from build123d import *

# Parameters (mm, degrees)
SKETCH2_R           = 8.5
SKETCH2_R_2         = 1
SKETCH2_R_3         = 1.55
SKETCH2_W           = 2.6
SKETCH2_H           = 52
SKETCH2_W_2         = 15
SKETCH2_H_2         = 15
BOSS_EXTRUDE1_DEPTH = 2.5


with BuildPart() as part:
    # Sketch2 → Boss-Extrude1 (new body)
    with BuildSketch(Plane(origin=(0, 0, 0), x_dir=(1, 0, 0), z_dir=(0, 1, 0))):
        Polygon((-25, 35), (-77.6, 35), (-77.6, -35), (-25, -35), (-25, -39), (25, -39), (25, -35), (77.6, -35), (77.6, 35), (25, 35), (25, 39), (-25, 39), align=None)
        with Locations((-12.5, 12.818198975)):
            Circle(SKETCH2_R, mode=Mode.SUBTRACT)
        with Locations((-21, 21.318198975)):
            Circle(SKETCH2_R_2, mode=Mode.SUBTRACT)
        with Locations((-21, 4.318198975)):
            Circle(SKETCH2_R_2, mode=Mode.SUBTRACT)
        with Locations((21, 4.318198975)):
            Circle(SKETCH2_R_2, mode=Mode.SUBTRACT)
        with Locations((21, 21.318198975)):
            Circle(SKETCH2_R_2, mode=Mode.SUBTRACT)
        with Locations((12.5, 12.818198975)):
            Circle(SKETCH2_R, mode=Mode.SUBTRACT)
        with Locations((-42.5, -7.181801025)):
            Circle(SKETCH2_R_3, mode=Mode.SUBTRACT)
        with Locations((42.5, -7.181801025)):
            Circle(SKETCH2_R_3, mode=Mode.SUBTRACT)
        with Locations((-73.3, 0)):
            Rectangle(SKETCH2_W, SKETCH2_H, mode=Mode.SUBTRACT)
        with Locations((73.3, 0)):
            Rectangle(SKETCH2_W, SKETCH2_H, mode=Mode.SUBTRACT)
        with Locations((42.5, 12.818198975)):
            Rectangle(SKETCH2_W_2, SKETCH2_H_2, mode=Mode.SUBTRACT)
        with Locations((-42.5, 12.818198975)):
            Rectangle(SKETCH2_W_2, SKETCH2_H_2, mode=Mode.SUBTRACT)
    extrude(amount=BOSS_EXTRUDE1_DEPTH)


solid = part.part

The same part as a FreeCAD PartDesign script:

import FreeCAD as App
import Part
import Sketcher

V = App.Vector
Q = App.Units.Quantity

doc = App.newDocument("Part")
body = doc.addObject("PartDesign::Body", "Body")

sketch1 = doc.addObject("Sketcher::SketchObject", "Sketch")
body.addObject(sketch1)
sketch1.AttachmentSupport = (doc.XZ_Plane, [""])
sketch1.MapMode = "FlatFace"
sketch1.addGeometry([
    Part.LineSegment(V(-25, -35, 0), V(-77.6, -35, 0)),
    Part.LineSegment(V(-77.6, -35, 0), V(-77.6, 35, 0)),
    Part.LineSegment(V(-77.6, 35, 0), V(-25, 35, 0)),
    Part.LineSegment(V(-25, 35, 0), V(-25, 39, 0)),
    Part.LineSegment(V(-25, 39, 0), V(25, 39, 0)),
    Part.LineSegment(V(25, 39, 0), V(25, 35, 0)),
    Part.LineSegment(V(25, 35, 0), V(77.6, 35, 0)),
    Part.LineSegment(V(77.6, 35, 0), V(77.6, -35, 0)),
    Part.LineSegment(V(77.6, -35, 0), V(25, -35, 0)),
    Part.LineSegment(V(25, -35, 0), V(25, -39, 0)),
    Part.LineSegment(V(25, -39, 0), V(-25, -39, 0)),
    Part.LineSegment(V(-25, -39, 0), V(-25, -35, 0)),
    Part.Circle(V(-42.5, 7.181801, 0), V(0, 0, 1), 1.55),
    Part.Circle(V(42.5, 7.181801, 0), V(0, 0, 1), 1.55),
    Part.LineSegment(V(-72, 26, 0), V(-74.6, 26, 0)),
    Part.LineSegment(V(-74.6, 26, 0), V(-74.6, -26, 0)),
    Part.LineSegment(V(-74.6, -26, 0), V(-72, -26, 0)),
    Part.LineSegment(V(-72, -26, 0), V(-72, 26, 0)),
    Part.LineSegment(V(-35, -5.318199, 0), V(-50, -5.318199, 0)),
    Part.LineSegment(V(-50, -5.318199, 0), V(-50, -20.318199, 0)),
    Part.LineSegment(V(-50, -20.318199, 0), V(-35, -20.318199, 0)),
    Part.LineSegment(V(-35, -20.318199, 0), V(-35, -5.318199, 0)),
    Part.Circle(V(-21, -4.318199, 0), V(0, 0, 1), 1),
    Part.Circle(V(-12.5, -12.818199, 0), V(0, 0, 1), 8.5),
    Part.Circle(V(-21, -21.318199, 0), V(0, 0, 1), 1),
    Part.Circle(V(21, -4.318199, 0), V(0, 0, 1), 1),
    Part.Circle(V(12.5, -12.818199, 0), V(0, 0, 1), 8.5),
    Part.LineSegment(V(74.6, 26, 0), V(72, 26, 0)),
    Part.LineSegment(V(72, 26, 0), V(72, -26, 0)),
    Part.LineSegment(V(72, -26, 0), V(74.6, -26, 0)),
    Part.LineSegment(V(74.6, -26, 0), V(74.6, 26, 0)),
    Part.LineSegment(V(50, -5.318199, 0), V(35, -5.318199, 0)),
    Part.LineSegment(V(35, -5.318199, 0), V(35, -20.318199, 0)),
    Part.LineSegment(V(35, -20.318199, 0), V(50, -20.318199, 0)),
    Part.LineSegment(V(50, -20.318199, 0), V(50, -5.318199, 0)),
    Part.Circle(V(21, -21.318199, 0), V(0, 0, 1), 1),
], False)
sketch1.addConstraint([
    Sketcher.Constraint("Coincident", 0, 2, 1, 1),
    Sketcher.Constraint("Coincident", 1, 2, 2, 1),
    Sketcher.Constraint("Coincident", 2, 2, 3, 1),
    Sketcher.Constraint("Coincident", 3, 2, 4, 1),
    Sketcher.Constraint("Coincident", 4, 2, 5, 1),
    Sketcher.Constraint("Coincident", 5, 2, 6, 1),
    Sketcher.Constraint("Coincident", 6, 2, 7, 1),
    Sketcher.Constraint("Coincident", 7, 2, 8, 1),
    Sketcher.Constraint("Coincident", 8, 2, 9, 1),
    Sketcher.Constraint("Coincident", 9, 2, 10, 1),
    Sketcher.Constraint("Coincident", 10, 2, 11, 1),
    Sketcher.Constraint("Coincident", 11, 2, 0, 1),
    Sketcher.Constraint("Coincident", 14, 2, 15, 1),
    Sketcher.Constraint("Coincident", 15, 2, 16, 1),
    Sketcher.Constraint("Coincident", 16, 2, 17, 1),
    Sketcher.Constraint("Coincident", 17, 2, 14, 1),
    Sketcher.Constraint("Coincident", 18, 2, 19, 1),
    Sketcher.Constraint("Coincident", 19, 2, 20, 1),
    Sketcher.Constraint("Coincident", 20, 2, 21, 1),
    Sketcher.Constraint("Coincident", 21, 2, 18, 1),
    Sketcher.Constraint("Coincident", 27, 2, 28, 1),
    Sketcher.Constraint("Coincident", 28, 2, 29, 1),
    Sketcher.Constraint("Coincident", 29, 2, 30, 1),
    Sketcher.Constraint("Coincident", 30, 2, 27, 1),
    Sketcher.Constraint("Coincident", 31, 2, 32, 1),
    Sketcher.Constraint("Coincident", 32, 2, 33, 1),
    Sketcher.Constraint("Coincident", 33, 2, 34, 1),
    Sketcher.Constraint("Coincident", 34, 2, 31, 1),
    Sketcher.Constraint("Horizontal", 0),
    Sketcher.Constraint("Vertical", 1),
    Sketcher.Constraint("Horizontal", 2),
    Sketcher.Constraint("Vertical", 3),
    Sketcher.Constraint("Horizontal", 4),
    Sketcher.Constraint("Vertical", 5),
    Sketcher.Constraint("Horizontal", 6),
    Sketcher.Constraint("Vertical", 7),
    Sketcher.Constraint("Horizontal", 8),
    Sketcher.Constraint("Vertical", 9),
    Sketcher.Constraint("Horizontal", 10),
    Sketcher.Constraint("Vertical", 11),
    Sketcher.Constraint("Horizontal", 14),
    Sketcher.Constraint("Vertical", 15),
    Sketcher.Constraint("Horizontal", 16),
    Sketcher.Constraint("Vertical", 17),
    Sketcher.Constraint("Horizontal", 18),
    Sketcher.Constraint("Vertical", 19),
    Sketcher.Constraint("Horizontal", 20),
    Sketcher.Constraint("Vertical", 21),
    Sketcher.Constraint("Horizontal", 27),
    Sketcher.Constraint("Vertical", 28),
    Sketcher.Constraint("Horizontal", 29),
    Sketcher.Constraint("Vertical", 30),
    Sketcher.Constraint("Horizontal", 31),
    Sketcher.Constraint("Vertical", 32),
    Sketcher.Constraint("Horizontal", 33),
    Sketcher.Constraint("Vertical", 34),
    Sketcher.Constraint("Equal", 12, 13),
    Sketcher.Constraint("Equal", 22, 24),
    Sketcher.Constraint("Equal", 24, 25),
    Sketcher.Constraint("Equal", 23, 26),
    Sketcher.Constraint("Equal", 25, 35),
    Sketcher.Constraint("Symmetric", 0, 2, 6, 2, -1, 1),
    Sketcher.Constraint("Symmetric", 2, 2, 8, 2, -1, 1),
    Sketcher.Constraint("Symmetric", 4, 2, 10, 2, -1, 1),
    Sketcher.Constraint("Symmetric", 16, 2, 27, 2, -1, 1),
    Sketcher.Constraint("Symmetric", 14, 2, 29, 2, -1, 1),
    Sketcher.Constraint("Symmetric", 12, 3, 13, 3, -2),
    Sketcher.Constraint("Symmetric", 22, 3, 25, 3, -2),
    Sketcher.Constraint("Symmetric", 23, 3, 26, 3, -2),
    Sketcher.Constraint("Symmetric", 24, 3, 35, 3, -2),
    Sketcher.Constraint("Symmetric", 2, 2, 5, 2, -2),
    Sketcher.Constraint("Symmetric", 21, 2, 31, 2, -2),
    Sketcher.Constraint("Symmetric", 19, 2, 33, 2, -2),
    Sketcher.Constraint("Horizontal", 17, 2, 27, 2),
    Sketcher.Constraint("Vertical", 22, 3, 24, 3),
    Sketcher.Constraint("Equal", 33, 19),
    Sketcher.Constraint("Diameter", 22, Q("2 mm")),
    Sketcher.Constraint("Diameter", 23, Q("17 mm")),
    Sketcher.Constraint("Diameter", 12, Q("3.1 mm")),
    Sketcher.Constraint("DistanceX", 4, 1, 4, 2, Q("50 mm")),
    Sketcher.Constraint("DistanceX", 18, 2, 18, 1, Q("15 mm")),
    Sketcher.Constraint("DistanceY", 1, 1, 1, 2, Q("70 mm")),
    Sketcher.Constraint("DistanceY", 3, 1, 3, 2, Q("4 mm")),
    Sketcher.Constraint("DistanceY", 15, 2, 15, 1, Q("52 mm")),
    Sketcher.Constraint("DistanceX", 0, 2, 0, 1, Q("52.6 mm")),
    Sketcher.Constraint("DistanceX", 14, 2, 14, 1, Q("2.6 mm")),
    Sketcher.Constraint("DistanceX", 22, 3, -1, 1, Q("21 mm")),
    Sketcher.Constraint("DistanceX", 16, 2, -1, 1, Q("72 mm")),
    Sketcher.Constraint("DistanceX", 18, 2, -1, 1, Q("50 mm")),
    Sketcher.Constraint("DistanceX", 12, 3, 13, 3, Q("85 mm")),
    Sketcher.Constraint("DistanceX", 12, 3, 23, 3, Q("30 mm")),
    Sketcher.Constraint("DistanceY", 23, 3, 12, 3, Q("20 mm")),
    Sketcher.Constraint("DistanceY", 24, 3, 22, 3, Q("17 mm")),
    Sketcher.Constraint("DistanceY", 18, 2, 22, 3, Q("1 mm")),
    Sketcher.Constraint("DistanceY", 22, 3, 12, 3, Q("11.5 mm")),
    Sketcher.Constraint("DistanceY", -1, 1, 12, 3, Q("7.181801 mm")),
])
pad1 = doc.addObject("PartDesign::Pad", "Pad")
body.addObject(pad1)
pad1.Profile = sketch1
pad1.Length = 2.5
pad1.Reversed = True

doc.recompute()
